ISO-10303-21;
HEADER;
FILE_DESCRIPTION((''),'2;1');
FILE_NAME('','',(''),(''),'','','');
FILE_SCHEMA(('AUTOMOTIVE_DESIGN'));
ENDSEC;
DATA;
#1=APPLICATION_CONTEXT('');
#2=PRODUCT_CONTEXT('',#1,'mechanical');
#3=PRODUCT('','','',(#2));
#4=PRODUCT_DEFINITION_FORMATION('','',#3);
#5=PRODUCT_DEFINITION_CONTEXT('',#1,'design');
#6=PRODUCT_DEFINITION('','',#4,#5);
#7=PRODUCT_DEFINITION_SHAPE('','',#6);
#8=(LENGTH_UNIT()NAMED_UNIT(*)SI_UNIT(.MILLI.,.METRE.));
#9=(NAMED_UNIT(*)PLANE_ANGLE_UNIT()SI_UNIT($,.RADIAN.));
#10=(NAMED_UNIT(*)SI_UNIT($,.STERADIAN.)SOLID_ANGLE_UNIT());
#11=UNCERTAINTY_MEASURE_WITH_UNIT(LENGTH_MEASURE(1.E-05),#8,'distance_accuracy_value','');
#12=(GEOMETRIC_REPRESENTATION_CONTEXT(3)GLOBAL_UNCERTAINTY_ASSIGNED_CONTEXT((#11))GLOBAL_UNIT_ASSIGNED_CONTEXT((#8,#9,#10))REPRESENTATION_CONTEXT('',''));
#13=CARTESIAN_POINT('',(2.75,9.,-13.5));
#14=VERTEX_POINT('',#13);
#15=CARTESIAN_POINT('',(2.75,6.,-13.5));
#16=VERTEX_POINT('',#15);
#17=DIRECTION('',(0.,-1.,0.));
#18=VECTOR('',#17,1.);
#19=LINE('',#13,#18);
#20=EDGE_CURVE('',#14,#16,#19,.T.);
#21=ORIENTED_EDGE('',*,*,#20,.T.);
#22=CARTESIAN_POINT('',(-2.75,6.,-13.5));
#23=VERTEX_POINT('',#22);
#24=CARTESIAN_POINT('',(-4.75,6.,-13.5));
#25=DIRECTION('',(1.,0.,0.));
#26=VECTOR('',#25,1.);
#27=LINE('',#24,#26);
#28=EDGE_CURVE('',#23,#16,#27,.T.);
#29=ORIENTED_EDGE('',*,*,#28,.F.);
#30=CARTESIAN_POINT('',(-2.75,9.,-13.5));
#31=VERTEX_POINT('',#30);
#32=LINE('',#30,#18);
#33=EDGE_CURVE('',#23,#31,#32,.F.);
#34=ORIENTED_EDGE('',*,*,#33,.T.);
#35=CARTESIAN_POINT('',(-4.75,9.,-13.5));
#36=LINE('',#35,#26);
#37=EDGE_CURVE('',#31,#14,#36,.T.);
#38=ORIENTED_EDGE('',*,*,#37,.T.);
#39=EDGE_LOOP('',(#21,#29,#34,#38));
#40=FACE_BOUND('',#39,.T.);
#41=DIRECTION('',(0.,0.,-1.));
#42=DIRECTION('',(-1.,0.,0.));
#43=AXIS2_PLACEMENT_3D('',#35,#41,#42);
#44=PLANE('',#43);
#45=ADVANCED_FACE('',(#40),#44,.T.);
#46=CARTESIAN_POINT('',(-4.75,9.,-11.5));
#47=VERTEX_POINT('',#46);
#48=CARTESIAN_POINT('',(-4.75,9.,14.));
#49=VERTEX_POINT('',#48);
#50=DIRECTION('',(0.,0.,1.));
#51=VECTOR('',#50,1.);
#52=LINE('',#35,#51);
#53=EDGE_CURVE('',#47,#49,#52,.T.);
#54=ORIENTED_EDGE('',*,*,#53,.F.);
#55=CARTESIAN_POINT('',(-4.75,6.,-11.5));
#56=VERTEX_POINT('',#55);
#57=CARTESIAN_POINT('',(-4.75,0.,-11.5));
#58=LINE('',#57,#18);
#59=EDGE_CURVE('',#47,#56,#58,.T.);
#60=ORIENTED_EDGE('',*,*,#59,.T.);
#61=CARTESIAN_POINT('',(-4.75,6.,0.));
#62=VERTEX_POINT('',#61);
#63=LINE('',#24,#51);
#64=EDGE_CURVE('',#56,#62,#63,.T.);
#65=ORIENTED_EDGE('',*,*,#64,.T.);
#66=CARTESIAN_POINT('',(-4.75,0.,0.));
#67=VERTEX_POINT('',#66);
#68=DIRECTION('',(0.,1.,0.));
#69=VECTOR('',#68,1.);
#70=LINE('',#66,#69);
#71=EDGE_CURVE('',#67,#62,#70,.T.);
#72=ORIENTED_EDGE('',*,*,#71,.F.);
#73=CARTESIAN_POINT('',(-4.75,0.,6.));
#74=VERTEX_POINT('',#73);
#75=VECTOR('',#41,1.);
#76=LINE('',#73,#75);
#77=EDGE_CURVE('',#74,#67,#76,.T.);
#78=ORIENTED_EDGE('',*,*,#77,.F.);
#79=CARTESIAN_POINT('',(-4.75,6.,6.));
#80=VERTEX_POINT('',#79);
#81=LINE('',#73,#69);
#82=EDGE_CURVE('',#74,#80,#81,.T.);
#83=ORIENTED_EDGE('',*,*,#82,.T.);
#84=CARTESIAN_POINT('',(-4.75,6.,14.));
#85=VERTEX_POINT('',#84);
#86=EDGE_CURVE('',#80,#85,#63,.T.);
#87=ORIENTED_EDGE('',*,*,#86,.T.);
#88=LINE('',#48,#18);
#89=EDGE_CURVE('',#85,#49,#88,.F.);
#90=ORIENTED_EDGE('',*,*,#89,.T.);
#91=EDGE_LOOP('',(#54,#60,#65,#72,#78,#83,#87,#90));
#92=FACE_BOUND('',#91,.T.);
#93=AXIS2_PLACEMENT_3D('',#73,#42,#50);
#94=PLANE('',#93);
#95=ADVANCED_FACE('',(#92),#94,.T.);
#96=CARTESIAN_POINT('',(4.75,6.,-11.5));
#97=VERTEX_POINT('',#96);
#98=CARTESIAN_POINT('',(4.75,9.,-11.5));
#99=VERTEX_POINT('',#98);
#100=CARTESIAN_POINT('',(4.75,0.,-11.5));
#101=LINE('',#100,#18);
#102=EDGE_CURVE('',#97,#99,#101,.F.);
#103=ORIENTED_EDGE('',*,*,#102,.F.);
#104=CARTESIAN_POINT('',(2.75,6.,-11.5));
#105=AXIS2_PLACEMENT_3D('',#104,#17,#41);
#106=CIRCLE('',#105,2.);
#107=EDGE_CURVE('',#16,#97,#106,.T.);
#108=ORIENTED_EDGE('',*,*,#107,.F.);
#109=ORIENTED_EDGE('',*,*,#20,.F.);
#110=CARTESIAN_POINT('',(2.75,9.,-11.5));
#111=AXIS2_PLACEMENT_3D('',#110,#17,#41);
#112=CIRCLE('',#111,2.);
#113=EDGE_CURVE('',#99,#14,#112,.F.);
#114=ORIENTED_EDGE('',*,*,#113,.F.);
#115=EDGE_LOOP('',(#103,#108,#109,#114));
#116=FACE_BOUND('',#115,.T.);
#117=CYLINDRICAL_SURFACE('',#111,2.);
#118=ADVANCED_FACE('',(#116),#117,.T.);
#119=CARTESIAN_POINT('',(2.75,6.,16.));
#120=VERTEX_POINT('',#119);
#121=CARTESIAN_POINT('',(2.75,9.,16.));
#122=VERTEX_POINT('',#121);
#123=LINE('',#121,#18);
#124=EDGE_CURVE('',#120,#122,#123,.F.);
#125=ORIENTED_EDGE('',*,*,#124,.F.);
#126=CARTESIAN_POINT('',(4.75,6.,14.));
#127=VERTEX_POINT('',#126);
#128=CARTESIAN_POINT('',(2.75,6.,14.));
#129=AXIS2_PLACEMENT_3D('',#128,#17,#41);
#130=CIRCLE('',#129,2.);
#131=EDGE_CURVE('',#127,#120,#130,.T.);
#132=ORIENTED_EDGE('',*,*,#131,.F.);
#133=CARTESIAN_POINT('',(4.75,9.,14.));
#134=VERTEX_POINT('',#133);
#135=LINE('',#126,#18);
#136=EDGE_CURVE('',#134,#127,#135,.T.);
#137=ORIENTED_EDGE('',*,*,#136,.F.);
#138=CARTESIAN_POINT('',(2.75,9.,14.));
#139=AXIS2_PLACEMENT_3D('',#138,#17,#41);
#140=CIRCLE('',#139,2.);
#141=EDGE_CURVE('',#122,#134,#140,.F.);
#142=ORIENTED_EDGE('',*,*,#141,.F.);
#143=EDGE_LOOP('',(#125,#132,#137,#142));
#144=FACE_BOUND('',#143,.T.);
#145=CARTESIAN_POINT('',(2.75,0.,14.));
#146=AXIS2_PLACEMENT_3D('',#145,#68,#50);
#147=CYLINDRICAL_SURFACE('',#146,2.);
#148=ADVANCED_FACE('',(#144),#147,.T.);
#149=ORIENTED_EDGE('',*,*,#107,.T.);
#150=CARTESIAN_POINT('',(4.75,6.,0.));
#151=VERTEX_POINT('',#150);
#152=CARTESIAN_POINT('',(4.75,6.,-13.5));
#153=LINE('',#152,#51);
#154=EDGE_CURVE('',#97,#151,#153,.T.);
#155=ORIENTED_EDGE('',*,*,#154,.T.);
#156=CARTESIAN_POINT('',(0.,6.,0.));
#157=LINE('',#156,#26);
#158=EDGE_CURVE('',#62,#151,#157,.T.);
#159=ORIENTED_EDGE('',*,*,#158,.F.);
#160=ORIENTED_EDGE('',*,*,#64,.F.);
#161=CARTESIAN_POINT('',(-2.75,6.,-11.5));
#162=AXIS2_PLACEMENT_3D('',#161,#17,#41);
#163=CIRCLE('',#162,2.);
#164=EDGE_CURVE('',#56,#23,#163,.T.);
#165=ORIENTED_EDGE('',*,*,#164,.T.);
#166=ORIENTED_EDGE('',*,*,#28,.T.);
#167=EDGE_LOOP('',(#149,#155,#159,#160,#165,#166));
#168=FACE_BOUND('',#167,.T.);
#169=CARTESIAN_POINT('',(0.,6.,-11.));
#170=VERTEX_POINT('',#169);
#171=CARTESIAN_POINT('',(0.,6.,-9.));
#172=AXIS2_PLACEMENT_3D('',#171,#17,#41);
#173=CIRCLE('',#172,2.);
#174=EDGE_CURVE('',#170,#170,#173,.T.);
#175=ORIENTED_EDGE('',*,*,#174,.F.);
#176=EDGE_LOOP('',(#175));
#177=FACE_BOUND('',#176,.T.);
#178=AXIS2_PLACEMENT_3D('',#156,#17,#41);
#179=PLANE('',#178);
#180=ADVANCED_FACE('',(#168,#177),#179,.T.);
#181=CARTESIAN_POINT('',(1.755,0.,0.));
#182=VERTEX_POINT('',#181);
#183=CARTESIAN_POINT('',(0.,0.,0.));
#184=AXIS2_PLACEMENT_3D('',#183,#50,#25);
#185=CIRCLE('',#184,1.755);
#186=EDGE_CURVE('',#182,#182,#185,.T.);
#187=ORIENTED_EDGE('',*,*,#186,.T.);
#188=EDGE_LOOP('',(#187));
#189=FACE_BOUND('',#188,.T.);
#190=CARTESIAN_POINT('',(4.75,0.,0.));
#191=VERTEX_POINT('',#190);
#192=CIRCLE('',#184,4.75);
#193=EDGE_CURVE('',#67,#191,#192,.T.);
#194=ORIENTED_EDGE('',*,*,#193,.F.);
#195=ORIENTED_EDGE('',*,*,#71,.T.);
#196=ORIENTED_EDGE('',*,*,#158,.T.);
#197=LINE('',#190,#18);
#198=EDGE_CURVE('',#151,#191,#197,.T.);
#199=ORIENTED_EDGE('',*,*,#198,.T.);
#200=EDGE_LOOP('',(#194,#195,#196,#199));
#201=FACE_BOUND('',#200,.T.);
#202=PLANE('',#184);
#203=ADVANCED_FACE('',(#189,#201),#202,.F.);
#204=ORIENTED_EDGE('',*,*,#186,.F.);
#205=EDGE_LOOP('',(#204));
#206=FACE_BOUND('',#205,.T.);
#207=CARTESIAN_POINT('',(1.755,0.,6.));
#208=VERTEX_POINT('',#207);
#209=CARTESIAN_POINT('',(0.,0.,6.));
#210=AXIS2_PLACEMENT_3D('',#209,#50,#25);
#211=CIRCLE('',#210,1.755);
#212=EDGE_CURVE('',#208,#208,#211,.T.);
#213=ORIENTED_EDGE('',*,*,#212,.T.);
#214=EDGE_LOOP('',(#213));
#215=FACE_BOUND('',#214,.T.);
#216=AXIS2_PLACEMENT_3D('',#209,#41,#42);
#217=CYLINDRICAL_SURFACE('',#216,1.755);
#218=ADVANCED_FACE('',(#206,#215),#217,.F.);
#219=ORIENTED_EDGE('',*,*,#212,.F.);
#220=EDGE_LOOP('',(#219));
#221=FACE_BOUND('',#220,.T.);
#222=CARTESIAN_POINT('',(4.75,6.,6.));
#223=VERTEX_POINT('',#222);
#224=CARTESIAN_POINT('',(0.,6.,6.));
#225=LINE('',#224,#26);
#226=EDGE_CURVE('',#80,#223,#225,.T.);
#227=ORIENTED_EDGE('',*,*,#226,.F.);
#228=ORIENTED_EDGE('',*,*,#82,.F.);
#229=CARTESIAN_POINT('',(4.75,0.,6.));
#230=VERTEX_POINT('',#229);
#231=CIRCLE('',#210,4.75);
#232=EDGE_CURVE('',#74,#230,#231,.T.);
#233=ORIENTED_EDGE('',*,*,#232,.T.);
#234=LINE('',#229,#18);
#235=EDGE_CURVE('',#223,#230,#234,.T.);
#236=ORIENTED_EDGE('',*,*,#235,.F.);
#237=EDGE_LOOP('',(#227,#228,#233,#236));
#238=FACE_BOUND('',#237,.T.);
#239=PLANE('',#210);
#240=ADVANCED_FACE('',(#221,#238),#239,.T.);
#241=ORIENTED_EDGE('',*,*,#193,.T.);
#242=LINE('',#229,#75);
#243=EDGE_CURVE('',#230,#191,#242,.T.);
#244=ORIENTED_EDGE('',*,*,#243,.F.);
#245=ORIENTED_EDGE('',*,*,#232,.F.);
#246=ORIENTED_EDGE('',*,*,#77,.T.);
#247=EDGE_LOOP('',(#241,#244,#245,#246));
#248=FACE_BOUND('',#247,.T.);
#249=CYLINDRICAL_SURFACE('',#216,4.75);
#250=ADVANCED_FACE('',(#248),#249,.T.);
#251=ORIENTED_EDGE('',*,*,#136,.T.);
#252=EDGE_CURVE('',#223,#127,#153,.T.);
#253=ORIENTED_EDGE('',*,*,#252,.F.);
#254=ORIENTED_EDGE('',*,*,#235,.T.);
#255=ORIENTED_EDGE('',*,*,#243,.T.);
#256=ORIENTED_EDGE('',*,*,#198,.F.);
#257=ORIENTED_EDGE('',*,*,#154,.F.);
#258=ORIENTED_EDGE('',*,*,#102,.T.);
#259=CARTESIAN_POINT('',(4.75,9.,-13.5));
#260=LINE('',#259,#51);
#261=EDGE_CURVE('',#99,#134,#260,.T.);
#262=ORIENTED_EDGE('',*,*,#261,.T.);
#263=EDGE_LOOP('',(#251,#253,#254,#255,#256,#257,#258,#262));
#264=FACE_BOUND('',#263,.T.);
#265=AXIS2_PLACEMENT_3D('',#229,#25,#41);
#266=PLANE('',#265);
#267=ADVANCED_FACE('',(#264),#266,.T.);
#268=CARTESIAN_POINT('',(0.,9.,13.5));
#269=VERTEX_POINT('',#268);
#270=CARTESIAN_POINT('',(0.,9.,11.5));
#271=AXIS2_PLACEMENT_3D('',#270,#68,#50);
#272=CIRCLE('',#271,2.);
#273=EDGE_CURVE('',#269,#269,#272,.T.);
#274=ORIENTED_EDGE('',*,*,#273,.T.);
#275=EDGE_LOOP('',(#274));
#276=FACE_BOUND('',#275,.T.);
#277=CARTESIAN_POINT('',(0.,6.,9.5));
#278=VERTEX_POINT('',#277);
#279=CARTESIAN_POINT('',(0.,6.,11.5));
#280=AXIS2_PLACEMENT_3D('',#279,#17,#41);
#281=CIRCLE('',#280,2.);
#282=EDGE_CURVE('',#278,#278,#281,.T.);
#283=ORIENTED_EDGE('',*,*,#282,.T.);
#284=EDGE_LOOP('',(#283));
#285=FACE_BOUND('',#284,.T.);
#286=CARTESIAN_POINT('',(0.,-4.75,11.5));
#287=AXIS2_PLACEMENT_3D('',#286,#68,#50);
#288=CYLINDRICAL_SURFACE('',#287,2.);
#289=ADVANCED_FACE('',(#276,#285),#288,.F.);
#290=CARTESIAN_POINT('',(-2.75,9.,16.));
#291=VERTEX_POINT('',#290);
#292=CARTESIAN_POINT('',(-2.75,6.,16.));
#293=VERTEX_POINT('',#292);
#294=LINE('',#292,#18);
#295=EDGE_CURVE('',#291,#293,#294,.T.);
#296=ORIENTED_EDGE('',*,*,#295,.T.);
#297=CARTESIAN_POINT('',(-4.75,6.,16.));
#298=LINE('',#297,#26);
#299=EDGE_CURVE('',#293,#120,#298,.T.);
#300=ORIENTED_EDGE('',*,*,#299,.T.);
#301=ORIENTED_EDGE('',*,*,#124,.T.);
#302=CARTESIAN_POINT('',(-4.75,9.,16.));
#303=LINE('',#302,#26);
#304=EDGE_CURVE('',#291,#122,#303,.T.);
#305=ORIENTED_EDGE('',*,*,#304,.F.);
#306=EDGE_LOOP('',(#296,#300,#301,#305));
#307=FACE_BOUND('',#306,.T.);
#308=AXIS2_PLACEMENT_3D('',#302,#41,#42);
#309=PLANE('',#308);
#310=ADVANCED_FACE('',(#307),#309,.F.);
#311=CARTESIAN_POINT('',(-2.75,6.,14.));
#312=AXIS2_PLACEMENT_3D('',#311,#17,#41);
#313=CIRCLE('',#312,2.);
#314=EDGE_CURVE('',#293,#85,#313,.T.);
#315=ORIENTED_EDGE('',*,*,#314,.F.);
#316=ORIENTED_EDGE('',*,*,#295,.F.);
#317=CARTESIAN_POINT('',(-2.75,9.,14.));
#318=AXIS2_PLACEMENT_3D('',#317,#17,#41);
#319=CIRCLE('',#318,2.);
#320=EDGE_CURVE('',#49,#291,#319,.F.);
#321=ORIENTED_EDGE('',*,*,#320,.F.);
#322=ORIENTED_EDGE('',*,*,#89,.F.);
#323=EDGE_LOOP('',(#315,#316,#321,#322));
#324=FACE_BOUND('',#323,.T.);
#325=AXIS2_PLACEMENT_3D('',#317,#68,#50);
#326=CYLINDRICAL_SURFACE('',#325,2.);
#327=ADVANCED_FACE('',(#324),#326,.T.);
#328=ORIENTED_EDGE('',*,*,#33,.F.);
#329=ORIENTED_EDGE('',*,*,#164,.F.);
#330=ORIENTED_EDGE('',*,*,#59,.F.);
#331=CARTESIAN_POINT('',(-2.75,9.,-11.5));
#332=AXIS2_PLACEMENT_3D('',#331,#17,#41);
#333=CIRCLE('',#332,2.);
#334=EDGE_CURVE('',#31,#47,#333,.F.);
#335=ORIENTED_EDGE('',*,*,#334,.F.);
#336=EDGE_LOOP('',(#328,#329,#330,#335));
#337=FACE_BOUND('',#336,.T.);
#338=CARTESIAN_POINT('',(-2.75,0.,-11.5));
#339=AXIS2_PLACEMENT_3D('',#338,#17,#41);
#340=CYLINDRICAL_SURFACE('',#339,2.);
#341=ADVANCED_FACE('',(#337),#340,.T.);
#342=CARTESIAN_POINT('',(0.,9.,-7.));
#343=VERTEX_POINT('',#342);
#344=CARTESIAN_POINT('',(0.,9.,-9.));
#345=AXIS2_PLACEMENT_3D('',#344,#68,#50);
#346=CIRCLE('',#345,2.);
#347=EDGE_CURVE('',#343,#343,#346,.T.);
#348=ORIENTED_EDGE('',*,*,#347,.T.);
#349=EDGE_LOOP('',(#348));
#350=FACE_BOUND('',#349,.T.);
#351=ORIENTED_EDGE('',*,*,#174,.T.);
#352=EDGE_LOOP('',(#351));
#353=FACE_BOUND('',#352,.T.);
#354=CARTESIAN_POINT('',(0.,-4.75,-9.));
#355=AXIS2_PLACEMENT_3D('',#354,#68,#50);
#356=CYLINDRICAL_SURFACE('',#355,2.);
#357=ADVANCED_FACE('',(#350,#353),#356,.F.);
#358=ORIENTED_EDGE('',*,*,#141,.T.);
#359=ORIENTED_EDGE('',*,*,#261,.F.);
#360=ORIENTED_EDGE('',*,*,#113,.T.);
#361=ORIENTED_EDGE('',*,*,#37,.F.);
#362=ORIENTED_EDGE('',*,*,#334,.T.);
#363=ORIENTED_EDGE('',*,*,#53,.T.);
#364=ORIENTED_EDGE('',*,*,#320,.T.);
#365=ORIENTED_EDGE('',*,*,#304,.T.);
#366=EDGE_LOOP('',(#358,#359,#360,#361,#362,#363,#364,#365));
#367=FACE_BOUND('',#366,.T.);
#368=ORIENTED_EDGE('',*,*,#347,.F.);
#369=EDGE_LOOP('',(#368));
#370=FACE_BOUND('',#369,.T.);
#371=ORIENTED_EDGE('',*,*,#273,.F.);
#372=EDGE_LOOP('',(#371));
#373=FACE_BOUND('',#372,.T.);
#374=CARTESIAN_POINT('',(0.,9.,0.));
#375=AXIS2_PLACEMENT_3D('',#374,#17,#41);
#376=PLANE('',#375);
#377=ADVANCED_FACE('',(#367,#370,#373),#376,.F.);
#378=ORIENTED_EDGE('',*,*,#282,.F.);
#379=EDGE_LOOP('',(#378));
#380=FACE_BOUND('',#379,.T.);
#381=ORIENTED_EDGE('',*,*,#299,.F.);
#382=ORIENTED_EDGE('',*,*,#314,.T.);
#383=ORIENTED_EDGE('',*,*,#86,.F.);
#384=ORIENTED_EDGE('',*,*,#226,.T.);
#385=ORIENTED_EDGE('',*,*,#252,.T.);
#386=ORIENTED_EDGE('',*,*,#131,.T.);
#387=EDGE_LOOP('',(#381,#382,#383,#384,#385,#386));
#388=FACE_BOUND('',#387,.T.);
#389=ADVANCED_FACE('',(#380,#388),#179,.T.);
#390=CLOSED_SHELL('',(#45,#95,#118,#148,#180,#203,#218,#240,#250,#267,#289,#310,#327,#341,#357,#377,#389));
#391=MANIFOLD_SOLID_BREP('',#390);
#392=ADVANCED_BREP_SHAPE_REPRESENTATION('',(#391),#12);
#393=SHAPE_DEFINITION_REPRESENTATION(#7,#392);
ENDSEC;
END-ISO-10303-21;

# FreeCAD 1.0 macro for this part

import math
import FreeCAD as App
import Part
import Sketcher


def edges_at(feature, points):
    """Names of the edges that pass closest to the given points."""
    edges = feature.Shape.Edges
    near = lambda p: min(range(len(edges)), key=lambda i: edges[i].distToShape(Part.Vertex(*p))[0])
    return sorted({f"Edge{near(p) + 1}" for p in points})


def add_polygon(sketch, points):
    """Adds a closed chain of lines whose ends are joined by coincident constraints."""
    first, n = sketch.GeometryCount, len(points)
    for a, b in zip(points, points[1:] + points[:1]):
        sketch.addGeometry(Part.LineSegment(App.Vector(*a, 0), App.Vector(*b, 0)), False)
    for i in range(n):
        sketch.addConstraint(Sketcher.Constraint("Coincident", first + i, 2, first + (i + 1) % n, 1))

doc = App.newDocument("Part")
body = doc.addObject("PartDesign::Body", "Body")

# Sketch on XY plane
sketch1 = doc.addObject("Sketcher::SketchObject", "Sketch")
body.addObject(sketch1)
sketch1.AttachmentSupport = (doc.XY_Plane, [""])
sketch1.MapMode = "FlatFace"
sketch1.addGeometry([
    Part.LineSegment(App.Vector(-4.8, 6, 0), App.Vector(-4.8, 0, 0)),  # 0
    Part.ArcOfCircle(Part.Circle(App.Vector(0, 0, 0), App.Vector(0, 0, 1), 4.8), math.radians(180), math.radians(360)),  # 1
    Part.LineSegment(App.Vector(4.8, 0, 0), App.Vector(4.8, 6, 0)),  # 2
    Part.LineSegment(App.Vector(4.8, 6, 0), App.Vector(-4.8, 6, 0)),  # 3
    Part.Circle(App.Vector(0, 0, 0), App.Vector(0, 0, 1), 1.8),  # 4
], False)
sketch1.addConstraint([
    Sketcher.Constraint("Tangent", 0, 2, 1, 1),
    Sketcher.Constraint("Tangent", 1, 2, 2, 1),
    Sketcher.Constraint("Coincident", 2, 2, 3, 1),
    Sketcher.Constraint("Coincident", 3, 2, 0, 1),
    Sketcher.Constraint("Vertical", 0),
    Sketcher.Constraint("Vertical", 2),
    Sketcher.Constraint("Horizontal", 3),
    Sketcher.Constraint("Coincident", 1, 3, -1, 1),
    Sketcher.Constraint("Coincident", 4, 3, -1, 1),
    Sketcher.Constraint("Diameter", 4, 3.51),
    Sketcher.Constraint("DistanceY", 0, 2, 0, 1, 6.0),
    Sketcher.Constraint("Radius", 1, 4.75),
])
pad1 = doc.addObject("PartDesign::Pad", "Pad")
body.addObject(pad1)
pad1.Profile = sketch1
pad1.Length = 6

# Sketch on XZ plane
sketch2 = doc.addObject("Sketcher::SketchObject", "Sketch001")
body.addObject(sketch2)
sketch2.AttachmentSupport = (doc.XZ_Plane, [""])
sketch2.MapMode = "FlatFace"
sketch2.AttachmentOffset = App.Placement(App.Vector(0, 0, -6), App.Rotation())
add_polygon(sketch2, [(-5, -14), (-5, 16), (5, 16), (5, -14)])  # lines 0-3
sketch2.addConstraint([
    Sketcher.Constraint("Vertical", 0),
    Sketcher.Constraint("Horizontal", 1),
    Sketcher.Constraint("Vertical", 2),
    Sketcher.Constraint("Horizontal", 3),
    Sketcher.Constraint("DistanceX", 1, 1, 1, 2, 9.5),
    Sketcher.Constraint("DistanceY", 0, 1, 0, 2, 29.5),
    Sketcher.Constraint("DistanceY", -1, 1, 0, 2, 16.0),
    Sketcher.Constraint("DistanceX", 0, 2, -1, 1, 4.75),
])
pad2 = doc.addObject("PartDesign::Pad", "Pad001")
body.addObject(pad2)
pad2.Profile = sketch2
pad2.Length = 3
pad2.Reversed = True

# Sketch on XZ plane
sketch3 = doc.addObject("Sketcher::SketchObject", "Sketch002")
body.addObject(sketch3)
sketch3.AttachmentSupport = (doc.XZ_Plane, [""])
sketch3.MapMode = "FlatFace"
sketch3.AttachmentOffset = App.Placement(App.Vector(0, 0, -9), App.Rotation())
sketch3.addGeometry([
    Part.Circle(App.Vector(0, 11.5, 0), App.Vector(0, 0, 1), 2),
    Part.Circle(App.Vector(0, -9, 0), App.Vector(0, 0, 1), 2),
], False)
sketch3.addConstraint([
    Sketcher.Constraint("Equal", 0, 1),
    Sketcher.Constraint("PointOnObject", 0, 3, -2),
    Sketcher.Constraint("PointOnObject", 1, 3, -2),
    Sketcher.Constraint("Diameter", 0, 4.0),
    Sketcher.Constraint("DistanceY", 1, 3, -1, 1, 9.0),
    Sketcher.Constraint("DistanceY", -1, 1, 0, 3, 11.5),
])
pocket1 = doc.addObject("PartDesign::Pocket", "Pocket")
body.addObject(pocket1)
pocket1.Profile = sketch3
pocket1.Type = "ThroughAll"
pocket1.Reversed = True
doc.recompute()

fillet = doc.addObject("PartDesign::Fillet", "Fillet")
body.addObject(fillet)
fillet.Base = (pocket1, edges_at(pocket1, [
    (4.75, 7.5, -13.5),
    (-4.75, 7.5, -13.5),
    (-4.75, 7.5, 16),
    (4.75, 7.5, 16),
]))
fillet.Radius = 2

doc.recompute()
